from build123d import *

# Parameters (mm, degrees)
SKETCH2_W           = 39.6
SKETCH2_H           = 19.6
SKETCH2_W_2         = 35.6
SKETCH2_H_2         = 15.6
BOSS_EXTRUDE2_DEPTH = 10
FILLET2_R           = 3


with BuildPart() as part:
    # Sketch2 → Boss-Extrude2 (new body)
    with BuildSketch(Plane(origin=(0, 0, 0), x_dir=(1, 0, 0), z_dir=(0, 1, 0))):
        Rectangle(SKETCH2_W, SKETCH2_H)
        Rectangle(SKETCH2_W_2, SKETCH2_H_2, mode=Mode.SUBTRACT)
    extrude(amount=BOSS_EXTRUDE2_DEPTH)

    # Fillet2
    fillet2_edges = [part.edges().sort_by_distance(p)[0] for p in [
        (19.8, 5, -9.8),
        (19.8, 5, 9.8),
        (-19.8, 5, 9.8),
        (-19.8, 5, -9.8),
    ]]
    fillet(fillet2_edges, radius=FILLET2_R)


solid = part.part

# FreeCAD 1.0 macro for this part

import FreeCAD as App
import Part
import Sketcher

V = App.Vector


def edges_at(feature, points):
    """Names of the edges that pass closest to the given points."""
    edges = feature.Shape.Edges
    near = lambda p: min(range(len(edges)), key=lambda i: edges[i].distToShape(Part.Vertex(*p))[0])
    return sorted({f"Edge{near(p) + 1}" for p in points})


def add_polygon(sketch, points):
    """Adds a closed chain of lines whose ends are joined by coincident constraints."""
    first, n = sketch.GeometryCount, len(points)
    for a, b in zip(points, points[1:] + points[:1]):
        sketch.addGeometry(Part.LineSegment(App.Vector(*a, 0), App.Vector(*b, 0)), False)
    for i in range(n):
        sketch.addConstraint(Sketcher.Constraint("Coincident", first + i, 2, first + (i + 1) % n, 1))

doc = App.newDocument("Part")
params = doc.addObject("Spreadsheet::Sheet", "Params")
for row, (alias, value) in enumerate([
    ("sketch1_width", "39.6 mm"),
    ("sketch1_width2", "35.6 mm"),
    ("sketch1_height", "19.6 mm"),
    ("sketch1_height2", "15.6 mm"),
    ("pad1_length", "10 mm"),
    ("fillet_radius", "3 mm"),
], start=1):
    params.set(f"A{row}", alias)
    params.set(f"B{row}", "=" + value)
    params.setAlias(f"B{row}", alias)

body = doc.addObject("PartDesign::Body", "Body")

# Sketch on XZ plane
sketch1 = doc.addObject("Sketcher::SketchObject", "Sketch")
body.addObject(sketch1)
sketch1.AttachmentSupport = (doc.XZ_Plane, [""])
sketch1.MapMode = "FlatFace"
add_polygon(sketch1, [(-20, -10), (-20, 10), (20, 10), (20, -10)])  # lines 0-3
add_polygon(sketch1, [(18, 8), (-18, 8), (-18, -8), (18, -8)])  # lines 4-7
sketch1.addConstraint([
    Sketcher.Constraint("Vertical", 0),
    Sketcher.Constraint("Horizontal", 1),
    Sketcher.Constraint("Vertical", 2),
    Sketcher.Constraint("Horizontal", 3),
    Sketcher.Constraint("Horizontal", 4),
    Sketcher.Constraint("Vertical", 5),
    Sketcher.Constraint("Horizontal", 6),
    Sketcher.Constraint("Vertical", 7),
    Sketcher.Constraint("Symmetric", 0, 2, 2, 2, -1, 1),
    Sketcher.Constraint("Symmetric", 4, 2, 6, 2, -1, 1),
    Sketcher.Constraint("DistanceX", 1, 1, 1, 2, 39.6),
    Sketcher.Constraint("DistanceX", 4, 2, 4, 1, 35.6),
    Sketcher.Constraint("DistanceY", 0, 1, 0, 2, 19.6),
    Sketcher.Constraint("DistanceY", 5, 2, 5, 1, 15.6),
])
sketch1.setExpression("Constraints[18]", "Params.sketch1_width")
sketch1.setExpression("Constraints[19]", "Params.sketch1_width2")
sketch1.setExpression("Constraints[20]", "Params.sketch1_height")
sketch1.setExpression("Constraints[21]", "Params.sketch1_height2")
pad1 = doc.addObject("PartDesign::Pad", "Pad")
body.addObject(pad1)
pad1.Profile = sketch1
pad1.setExpression("Length", "Params.pad1_length")
pad1.Reversed = True
doc.recompute()

fillet = doc.addObject("PartDesign::Fillet", "Fillet")
body.addObject(fillet)
fillet.Base = (pad1, edges_at(pad1, [
    (19.8, 5, -9.8),
    (19.8, 5, 9.8),
    (-19.8, 5, 9.8),
    (-19.8, 5, -9.8),
]))
fillet.setExpression("Radius", "Params.fillet_radius")

doc.recompute()
